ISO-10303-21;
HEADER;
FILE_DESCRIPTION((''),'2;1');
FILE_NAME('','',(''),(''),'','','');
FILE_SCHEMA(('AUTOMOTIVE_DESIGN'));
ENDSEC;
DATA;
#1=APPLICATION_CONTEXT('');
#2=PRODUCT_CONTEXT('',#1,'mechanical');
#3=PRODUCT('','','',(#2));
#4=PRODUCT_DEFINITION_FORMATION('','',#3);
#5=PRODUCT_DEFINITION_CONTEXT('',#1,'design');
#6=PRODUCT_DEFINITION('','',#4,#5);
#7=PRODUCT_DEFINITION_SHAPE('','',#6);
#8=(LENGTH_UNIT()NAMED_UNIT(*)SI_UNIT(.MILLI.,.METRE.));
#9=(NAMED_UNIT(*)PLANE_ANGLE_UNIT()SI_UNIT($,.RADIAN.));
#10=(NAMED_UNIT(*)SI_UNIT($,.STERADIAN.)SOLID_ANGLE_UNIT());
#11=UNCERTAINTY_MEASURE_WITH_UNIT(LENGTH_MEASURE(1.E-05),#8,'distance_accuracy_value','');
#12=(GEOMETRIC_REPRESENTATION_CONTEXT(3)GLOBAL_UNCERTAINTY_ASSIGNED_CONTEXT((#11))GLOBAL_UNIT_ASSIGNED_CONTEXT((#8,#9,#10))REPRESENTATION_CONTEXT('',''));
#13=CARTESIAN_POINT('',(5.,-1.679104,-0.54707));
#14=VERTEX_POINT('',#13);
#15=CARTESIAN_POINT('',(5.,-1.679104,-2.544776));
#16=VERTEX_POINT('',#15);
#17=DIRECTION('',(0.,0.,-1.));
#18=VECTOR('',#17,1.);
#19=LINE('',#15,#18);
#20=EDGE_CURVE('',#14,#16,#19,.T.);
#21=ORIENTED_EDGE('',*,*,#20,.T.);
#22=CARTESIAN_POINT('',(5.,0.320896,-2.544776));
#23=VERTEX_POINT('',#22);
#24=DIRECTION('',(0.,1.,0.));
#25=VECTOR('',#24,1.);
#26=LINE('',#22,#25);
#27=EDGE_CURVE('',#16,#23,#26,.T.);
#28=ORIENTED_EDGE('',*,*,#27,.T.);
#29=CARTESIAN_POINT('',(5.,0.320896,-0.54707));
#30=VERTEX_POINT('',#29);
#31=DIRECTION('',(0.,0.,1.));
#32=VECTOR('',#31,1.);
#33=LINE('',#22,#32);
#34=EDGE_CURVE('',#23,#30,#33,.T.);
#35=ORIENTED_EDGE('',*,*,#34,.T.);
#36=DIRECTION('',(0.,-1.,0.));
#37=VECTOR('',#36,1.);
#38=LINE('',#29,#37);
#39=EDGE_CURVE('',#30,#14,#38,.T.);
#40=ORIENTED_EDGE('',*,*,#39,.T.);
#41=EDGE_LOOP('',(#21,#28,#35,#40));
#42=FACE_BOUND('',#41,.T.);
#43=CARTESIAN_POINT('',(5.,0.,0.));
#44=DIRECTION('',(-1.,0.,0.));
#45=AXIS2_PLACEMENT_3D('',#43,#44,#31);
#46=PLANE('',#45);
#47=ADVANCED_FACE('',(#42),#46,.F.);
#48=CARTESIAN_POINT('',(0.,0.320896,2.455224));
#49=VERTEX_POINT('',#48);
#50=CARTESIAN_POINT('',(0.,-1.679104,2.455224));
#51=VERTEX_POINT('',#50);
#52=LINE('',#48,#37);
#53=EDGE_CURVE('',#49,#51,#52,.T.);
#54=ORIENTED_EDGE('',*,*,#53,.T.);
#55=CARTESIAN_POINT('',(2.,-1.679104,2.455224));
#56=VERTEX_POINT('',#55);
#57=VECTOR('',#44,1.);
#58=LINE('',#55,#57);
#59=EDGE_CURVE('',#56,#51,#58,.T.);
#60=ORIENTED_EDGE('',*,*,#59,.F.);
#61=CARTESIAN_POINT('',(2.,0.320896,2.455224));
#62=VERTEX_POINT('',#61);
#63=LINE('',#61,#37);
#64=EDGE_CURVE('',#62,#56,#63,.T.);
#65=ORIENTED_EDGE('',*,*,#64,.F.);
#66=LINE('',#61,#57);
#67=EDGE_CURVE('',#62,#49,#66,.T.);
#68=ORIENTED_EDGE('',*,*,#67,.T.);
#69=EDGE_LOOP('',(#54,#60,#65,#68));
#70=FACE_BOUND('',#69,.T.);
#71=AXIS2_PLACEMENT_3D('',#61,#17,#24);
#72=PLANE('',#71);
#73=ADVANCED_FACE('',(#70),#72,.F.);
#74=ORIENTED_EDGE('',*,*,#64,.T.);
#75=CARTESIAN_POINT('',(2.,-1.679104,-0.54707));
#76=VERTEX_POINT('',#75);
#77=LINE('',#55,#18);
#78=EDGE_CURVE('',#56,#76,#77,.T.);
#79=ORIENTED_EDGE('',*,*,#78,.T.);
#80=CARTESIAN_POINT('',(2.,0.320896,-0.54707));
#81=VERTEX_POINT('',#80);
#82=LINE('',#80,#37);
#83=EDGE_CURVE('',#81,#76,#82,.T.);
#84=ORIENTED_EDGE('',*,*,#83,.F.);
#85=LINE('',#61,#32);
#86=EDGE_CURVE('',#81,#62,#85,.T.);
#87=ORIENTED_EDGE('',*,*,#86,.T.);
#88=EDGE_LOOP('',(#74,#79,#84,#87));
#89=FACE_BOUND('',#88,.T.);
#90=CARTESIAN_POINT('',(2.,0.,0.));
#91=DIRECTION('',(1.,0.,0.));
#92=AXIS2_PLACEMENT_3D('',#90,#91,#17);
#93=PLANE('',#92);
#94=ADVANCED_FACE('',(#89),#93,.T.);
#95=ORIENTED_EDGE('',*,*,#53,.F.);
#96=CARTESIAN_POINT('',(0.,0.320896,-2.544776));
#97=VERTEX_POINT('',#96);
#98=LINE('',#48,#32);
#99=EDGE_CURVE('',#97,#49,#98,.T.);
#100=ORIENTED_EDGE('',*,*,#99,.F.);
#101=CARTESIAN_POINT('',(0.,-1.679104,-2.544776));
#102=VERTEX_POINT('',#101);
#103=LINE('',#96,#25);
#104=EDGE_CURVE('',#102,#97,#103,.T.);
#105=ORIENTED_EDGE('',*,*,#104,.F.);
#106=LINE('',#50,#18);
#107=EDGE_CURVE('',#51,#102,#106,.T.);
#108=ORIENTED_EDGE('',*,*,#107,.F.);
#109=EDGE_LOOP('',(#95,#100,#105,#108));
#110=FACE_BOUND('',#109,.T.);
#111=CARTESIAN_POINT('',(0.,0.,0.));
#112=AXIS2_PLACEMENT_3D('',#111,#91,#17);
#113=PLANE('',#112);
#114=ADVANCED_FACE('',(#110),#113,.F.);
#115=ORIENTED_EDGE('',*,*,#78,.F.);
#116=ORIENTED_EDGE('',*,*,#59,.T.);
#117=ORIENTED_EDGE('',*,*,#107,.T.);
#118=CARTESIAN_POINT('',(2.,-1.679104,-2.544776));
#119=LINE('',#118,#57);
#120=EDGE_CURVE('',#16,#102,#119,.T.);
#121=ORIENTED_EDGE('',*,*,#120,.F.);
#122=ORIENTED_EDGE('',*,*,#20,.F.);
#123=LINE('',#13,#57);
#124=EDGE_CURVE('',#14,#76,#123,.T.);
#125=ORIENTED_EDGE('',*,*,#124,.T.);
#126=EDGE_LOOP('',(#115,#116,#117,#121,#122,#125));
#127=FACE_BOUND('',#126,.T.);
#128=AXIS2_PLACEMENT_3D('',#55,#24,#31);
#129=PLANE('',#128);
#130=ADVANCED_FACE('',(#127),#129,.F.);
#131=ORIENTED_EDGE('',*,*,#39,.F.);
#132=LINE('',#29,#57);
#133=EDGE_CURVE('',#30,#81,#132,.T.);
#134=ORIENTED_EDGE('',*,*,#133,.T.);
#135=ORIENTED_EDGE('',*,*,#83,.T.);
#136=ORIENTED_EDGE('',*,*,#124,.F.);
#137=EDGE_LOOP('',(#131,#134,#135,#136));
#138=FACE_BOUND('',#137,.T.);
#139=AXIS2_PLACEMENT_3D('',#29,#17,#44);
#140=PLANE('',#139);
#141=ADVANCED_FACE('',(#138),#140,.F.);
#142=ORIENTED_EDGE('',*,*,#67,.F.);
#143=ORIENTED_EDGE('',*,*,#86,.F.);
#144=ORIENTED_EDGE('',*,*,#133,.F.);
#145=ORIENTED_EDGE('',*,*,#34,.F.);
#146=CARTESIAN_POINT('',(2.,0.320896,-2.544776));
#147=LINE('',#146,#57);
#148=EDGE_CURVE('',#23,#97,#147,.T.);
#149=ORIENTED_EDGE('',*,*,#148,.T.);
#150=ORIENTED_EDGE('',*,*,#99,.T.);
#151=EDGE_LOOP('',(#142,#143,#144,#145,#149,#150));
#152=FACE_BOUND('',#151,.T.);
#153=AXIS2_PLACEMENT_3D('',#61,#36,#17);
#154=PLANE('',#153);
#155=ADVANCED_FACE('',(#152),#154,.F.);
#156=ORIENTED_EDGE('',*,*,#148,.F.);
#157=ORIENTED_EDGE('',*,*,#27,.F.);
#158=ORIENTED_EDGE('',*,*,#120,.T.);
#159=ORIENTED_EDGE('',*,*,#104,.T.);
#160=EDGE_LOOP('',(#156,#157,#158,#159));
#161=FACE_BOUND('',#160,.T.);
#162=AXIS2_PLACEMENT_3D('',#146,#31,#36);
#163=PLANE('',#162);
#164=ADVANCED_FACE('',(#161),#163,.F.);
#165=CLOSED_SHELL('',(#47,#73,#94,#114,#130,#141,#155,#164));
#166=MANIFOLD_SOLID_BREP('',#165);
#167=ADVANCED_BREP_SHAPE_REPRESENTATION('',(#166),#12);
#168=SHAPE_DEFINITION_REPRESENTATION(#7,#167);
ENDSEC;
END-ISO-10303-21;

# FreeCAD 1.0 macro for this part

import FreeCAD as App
import Part
import Sketcher

V = App.Vector
Q = App.Units.Quantity

doc = App.newDocument("Part")
body = doc.addObject("PartDesign::Body", "Body")

# Sketch on YZ plane
sketch1 = doc.addObject("Sketcher::SketchObject", "Sketch")
body.addObject(sketch1)
sketch1.AttachmentSupport = (doc.YZ_Plane, [""])
sketch1.MapMode = "FlatFace"
sketch1.addGeometry([
    Part.LineSegment(V(0.3, 2.5, 0), V(-1.7, 2.5, 0)),
    Part.LineSegment(V(-1.7, 2.5, 0), V(-1.7, -2.5, 0)),
    Part.LineSegment(V(-1.7, -2.5, 0), V(0.3, -2.5, 0)),
    Part.LineSegment(V(0.3, -2.5, 0), V(0.3, 2.5, 0)),
], False)
sketch1.addConstraint([
    Sketcher.Constraint("Coincident", 0, 2, 1, 1),
    Sketcher.Constraint("Coincident", 1, 2, 2, 1),
    Sketcher.Constraint("Coincident", 2, 2, 3, 1),
    Sketcher.Constraint("Coincident", 3, 2, 0, 1),
    Sketcher.Constraint("Horizontal", 0),
    Sketcher.Constraint("Vertical", 1),
    Sketcher.Constraint("Horizontal", 2),
    Sketcher.Constraint("Vertical", 3),
    Sketcher.Constraint("DistanceX", 0, 2, 0, 1, Q("2 mm")),
    Sketcher.Constraint("DistanceY", 1, 2, 1, 1, Q("5 mm")),
    Sketcher.Constraint("DistanceX", 0, 2, -1, 1, Q("1.679104 mm")),
    Sketcher.Constraint("DistanceY", -1, 1, 0, 2, Q("2.455224 mm")),
])
pad1 = doc.addObject("PartDesign::Pad", "Pad")
body.addObject(pad1)
pad1.Profile = sketch1
pad1.Length = 2

# Sketch on YZ plane
sketch2 = doc.addObject("Sketcher::SketchObject", "Sketch001")
body.addObject(sketch2)
sketch2.AttachmentSupport = (doc.YZ_Plane, [""])
sketch2.MapMode = "FlatFace"
sketch2.AttachmentOffset = App.Placement(V(0, 0, 2), App.Rotation())
sketch2.addGeometry([
    Part.LineSegment(V(0.3, -0.5, 0), V(-1.7, -0.5, 0)),
    Part.LineSegment(V(-1.7, -0.5, 0), V(-1.7, -2.5, 0)),
    Part.LineSegment(V(-1.7, -2.5, 0), V(0.3, -2.5, 0)),
    Part.LineSegment(V(0.3, -2.5, 0), V(0.3, -0.5, 0)),
], False)
sketch2.addConstraint([
    Sketcher.Constraint("Coincident", 0, 2, 1, 1),
    Sketcher.Constraint("Coincident", 1, 2, 2, 1),
    Sketcher.Constraint("Coincident", 2, 2, 3, 1),
    Sketcher.Constraint("Coincident", 3, 2, 0, 1),
    Sketcher.Constraint("Horizontal", 0),
    Sketcher.Constraint("Vertical", 1),
    Sketcher.Constraint("Horizontal", 2),
    Sketcher.Constraint("Vertical", 3),
    Sketcher.Constraint("DistanceX", 0, 2, 0, 1, Q("2 mm")),
    Sketcher.Constraint("DistanceY", 1, 2, 1, 1, Q("1.997706 mm")),
    Sketcher.Constraint("DistanceY", 0, 2, -1, 1, Q("0.54707 mm")),
    Sketcher.Constraint("DistanceX", 0, 2, -1, 1, Q("1.679104 mm")),
])
pad2 = doc.addObject("PartDesign::Pad", "Pad001")
body.addObject(pad2)
pad2.Profile = sketch2
pad2.Length = 3

doc.recompute()
